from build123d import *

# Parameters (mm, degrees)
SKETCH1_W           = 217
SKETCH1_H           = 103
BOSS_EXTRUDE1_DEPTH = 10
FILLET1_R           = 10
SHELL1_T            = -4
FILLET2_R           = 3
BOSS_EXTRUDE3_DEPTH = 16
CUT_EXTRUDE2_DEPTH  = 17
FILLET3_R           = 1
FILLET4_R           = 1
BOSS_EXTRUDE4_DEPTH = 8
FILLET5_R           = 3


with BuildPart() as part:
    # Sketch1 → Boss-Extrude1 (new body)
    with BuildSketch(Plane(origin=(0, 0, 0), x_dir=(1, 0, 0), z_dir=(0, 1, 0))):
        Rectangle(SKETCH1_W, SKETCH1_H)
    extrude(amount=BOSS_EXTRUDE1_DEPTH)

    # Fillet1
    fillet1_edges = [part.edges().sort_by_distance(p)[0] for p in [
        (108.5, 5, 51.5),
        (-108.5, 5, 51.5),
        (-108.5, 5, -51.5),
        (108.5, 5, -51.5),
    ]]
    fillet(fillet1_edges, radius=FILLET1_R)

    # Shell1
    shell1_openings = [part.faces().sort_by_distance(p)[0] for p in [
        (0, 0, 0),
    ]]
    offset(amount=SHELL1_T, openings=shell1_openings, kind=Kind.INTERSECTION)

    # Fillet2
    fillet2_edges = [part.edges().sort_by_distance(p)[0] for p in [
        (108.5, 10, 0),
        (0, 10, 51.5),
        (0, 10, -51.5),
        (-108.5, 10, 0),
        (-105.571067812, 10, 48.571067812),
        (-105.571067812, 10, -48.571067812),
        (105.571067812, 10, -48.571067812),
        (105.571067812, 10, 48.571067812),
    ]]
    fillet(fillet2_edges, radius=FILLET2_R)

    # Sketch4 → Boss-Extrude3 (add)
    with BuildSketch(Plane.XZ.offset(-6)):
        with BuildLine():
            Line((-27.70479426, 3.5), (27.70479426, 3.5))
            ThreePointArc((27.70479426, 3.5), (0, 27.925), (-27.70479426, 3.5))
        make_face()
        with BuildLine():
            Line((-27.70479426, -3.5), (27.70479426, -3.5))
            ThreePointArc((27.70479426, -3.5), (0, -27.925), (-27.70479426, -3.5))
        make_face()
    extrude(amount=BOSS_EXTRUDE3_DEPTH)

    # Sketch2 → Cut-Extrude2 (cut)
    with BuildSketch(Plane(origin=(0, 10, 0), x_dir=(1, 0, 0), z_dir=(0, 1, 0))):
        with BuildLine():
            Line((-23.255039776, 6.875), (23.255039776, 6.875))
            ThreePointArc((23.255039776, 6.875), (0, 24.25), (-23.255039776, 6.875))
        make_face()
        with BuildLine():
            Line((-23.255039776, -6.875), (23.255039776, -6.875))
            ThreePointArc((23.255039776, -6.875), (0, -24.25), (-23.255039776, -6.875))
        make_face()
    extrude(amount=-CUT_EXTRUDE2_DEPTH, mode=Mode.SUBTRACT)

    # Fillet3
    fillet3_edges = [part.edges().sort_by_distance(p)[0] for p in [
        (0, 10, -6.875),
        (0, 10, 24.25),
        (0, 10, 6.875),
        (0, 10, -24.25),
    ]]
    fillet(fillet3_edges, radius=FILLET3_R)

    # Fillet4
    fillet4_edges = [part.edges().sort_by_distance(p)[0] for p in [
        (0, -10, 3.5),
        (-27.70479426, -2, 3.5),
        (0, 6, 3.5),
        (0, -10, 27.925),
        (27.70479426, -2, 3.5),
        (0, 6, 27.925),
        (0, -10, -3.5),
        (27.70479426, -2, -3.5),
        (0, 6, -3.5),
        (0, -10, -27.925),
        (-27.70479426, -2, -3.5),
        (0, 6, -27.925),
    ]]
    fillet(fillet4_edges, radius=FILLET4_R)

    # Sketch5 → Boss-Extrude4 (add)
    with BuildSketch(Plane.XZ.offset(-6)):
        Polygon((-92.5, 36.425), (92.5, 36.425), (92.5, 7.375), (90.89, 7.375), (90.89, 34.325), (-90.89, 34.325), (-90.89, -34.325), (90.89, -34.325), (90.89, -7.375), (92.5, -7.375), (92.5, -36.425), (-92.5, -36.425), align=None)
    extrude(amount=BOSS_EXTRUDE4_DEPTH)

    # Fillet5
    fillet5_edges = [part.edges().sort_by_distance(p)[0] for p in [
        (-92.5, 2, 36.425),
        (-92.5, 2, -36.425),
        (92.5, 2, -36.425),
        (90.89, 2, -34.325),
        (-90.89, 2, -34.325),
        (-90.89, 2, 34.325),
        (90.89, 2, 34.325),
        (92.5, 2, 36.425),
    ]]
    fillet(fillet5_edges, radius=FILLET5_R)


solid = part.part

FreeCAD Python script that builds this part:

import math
import FreeCAD as App
import Part
import Sketcher


def edges_at(feature, points):
    """Names of the edges that pass closest to the given points."""
    edges = feature.Shape.Edges
    near = lambda p: min(range(len(edges)), key=lambda i: edges[i].distToShape(Part.Vertex(*p))[0])
    return sorted({f"Edge{near(p) + 1}" for p in points})


def faces_at(feature, points):
    """Names of the faces that lie closest to the given points."""
    faces = feature.Shape.Faces
    near = lambda p: min(range(len(faces)), key=lambda i: faces[i].distToShape(Part.Vertex(*p))[0])
    return sorted({f"Face{near(p) + 1}" for p in points})

doc = App.newDocument("Part")
body = doc.addObject("PartDesign::Body", "Body")

sketch1 = body.newObject("Sketcher::SketchObject", "Sketch")
sketch1.AttachmentSupport = (doc.getObject("XZ_Plane"), [""])
sketch1.MapMode = "FlatFace"
sketch1.addGeometry([
    Part.LineSegment(App.Vector(-108, -52, 0), App.Vector(-108, 52, 0)),
    Part.LineSegment(App.Vector(-108, 52, 0), App.Vector(108, 52, 0)),
    Part.LineSegment(App.Vector(108, 52, 0), App.Vector(108, -52, 0)),
    Part.LineSegment(App.Vector(108, -52, 0), App.Vector(-108, -52, 0)),
], False)
sketch1.addConstraint([
    Sketcher.Constraint("Coincident", 0, 2, 1, 1),
    Sketcher.Constraint("Coincident", 1, 2, 2, 1),
    Sketcher.Constraint("Coincident", 2, 2, 3, 1),
    Sketcher.Constraint("Coincident", 3, 2, 0, 1),
    Sketcher.Constraint("Vertical", 0),
    Sketcher.Constraint("Horizontal", 1),
    Sketcher.Constraint("Vertical", 2),
    Sketcher.Constraint("Horizontal", 3),
    Sketcher.Constraint("Symmetric", 0, 2, 2, 2, -1, 1),
    Sketcher.Constraint("DistanceX", 1, 1, 1, 2, 217.0),
    Sketcher.Constraint("DistanceY", 0, 1, 0, 2, 103.0),
])
pad1 = body.newObject("PartDesign::Pad", "Pad")
pad1.Profile = sketch1
pad1.Length = 10
pad1.Reversed = True
doc.recompute()

fillet = body.newObject("PartDesign::Fillet", "Fillet")
fillet.Base = (pad1, edges_at(pad1, [
    (108.5, 5, 51.5),
    (-108.5, 5, 51.5),
    (-108.5, 5, -51.5),
    (108.5, 5, -51.5),
]))
fillet.Radius = 10
doc.recompute()

thickness = body.newObject("PartDesign::Thickness", "Thickness")
thickness.Base = (fillet, faces_at(fillet, [(0, 0, 0)]))
thickness.Value = 4
thickness.Reversed = True
thickness.Join = "Intersection"
doc.recompute()

fillet2 = body.newObject("PartDesign::Fillet", "Fillet001")
fillet2.Base = (thickness, edges_at(thickness, [
    (108.5, 10, 0),
    (0, 10, 51.5),
    (0, 10, -51.5),
    (-108.5, 10, 0),
    (-105.571, 10, 48.571),
    (-105.571, 10, -48.571),
    (105.571, 10, -48.571),
    (105.571, 10, 48.571),
]))
fillet2.Radius = 3

sketch2 = body.newObject("Sketcher::SketchObject", "Sketch001")
sketch2.AttachmentSupport = (doc.getObject("XZ_Plane"), [""])
sketch2.MapMode = "FlatFace"
sketch2.AttachmentOffset = App.Placement(App.Vector(0, 0, -6), App.Rotation())
sketch2.addGeometry([
    Part.LineSegment(App.Vector(-28, 4, 0), App.Vector(28, 4, 0)),
    Part.ArcOfCircle(Part.Circle(App.Vector(0, 0, 0), App.Vector(0, 0, 1), 28), math.radians(7), math.radians(173)),
    Part.LineSegment(App.Vector(28, -4, 0), App.Vector(-28, -4, 0)),
    Part.ArcOfCircle(Part.Circle(App.Vector(0, 0, 0), App.Vector(0, 0, 1), 28), math.radians(-173), math.radians(-7)),
], False)
sketch2.addConstraint([
    Sketcher.Constraint("Coincident", 0, 1, 1, 2),
    Sketcher.Constraint("Coincident", 1, 1, 0, 2),
    Sketcher.Constraint("Coincident", 2, 1, 3, 2),
    Sketcher.Constraint("Coincident", 3, 1, 2, 2),
    Sketcher.Constraint("Horizontal", 0),
    Sketcher.Constraint("Horizontal", 2),
    Sketcher.Constraint("Coincident", 1, 3, -1, 1),
    Sketcher.Constraint("Coincident", 3, 3, -1, 1),
    Sketcher.Constraint("Equal", 1, 3),
    Sketcher.Constraint("Vertical", 1, 1, 2, 1),
    Sketcher.Constraint("Radius", 1, 27.925),
    Sketcher.Constraint("DistanceY", 2, 1, 1, 1, 7.0),
])
pad2 = body.newObject("PartDesign::Pad", "Pad001")
pad2.Profile = sketch2
pad2.Length = 16

sketch3 = body.newObject("Sketcher::SketchObject", "Sketch002")
sketch3.AttachmentSupport = (doc.getObject("XZ_Plane"), [""])
sketch3.MapMode = "FlatFace"
sketch3.AttachmentOffset = App.Placement(App.Vector(0, 0, -10), App.Rotation())
sketch3.addGeometry([
    Part.LineSegment(App.Vector(-23, -7, 0), App.Vector(23, -7, 0)),
    Part.ArcOfCircle(Part.Circle(App.Vector(0, 0, 0), App.Vector(0, 0, 1), 24), math.radians(-164), math.radians(-16)),
    Part.LineSegment(App.Vector(23, 7, 0), App.Vector(-23, 7, 0)),
    Part.ArcOfCircle(Part.Circle(App.Vector(0, 0, 0), App.Vector(0, 0, 1), 24), math.radians(16), math.radians(164)),
], False)
sketch3.addConstraint([
    Sketcher.Constraint("Coincident", 0, 1, 1, 1),
    Sketcher.Constraint("Coincident", 1, 2, 0, 2),
    Sketcher.Constraint("Coincident", 2, 1, 3, 1),
    Sketcher.Constraint("Coincident", 3, 2, 2, 2),
    Sketcher.Constraint("Horizontal", 0),
    Sketcher.Constraint("Horizontal", 2),
    Sketcher.Constraint("Coincident", 1, 3, -1, 1),
    Sketcher.Constraint("Coincident", 3, 3, -1, 1),
    Sketcher.Constraint("Equal", 1, 3),
    Sketcher.Constraint("Vertical", 1, 2, 2, 1),
    Sketcher.Constraint("Radius", 1, 24.25),
    Sketcher.Constraint("DistanceY", 1, 2, 2, 1, 13.75),
])
pocket1 = body.newObject("PartDesign::Pocket", "Pocket")
pocket1.Profile = sketch3
pocket1.Length = 17
pocket1.Reversed = True
doc.recompute()

fillet3 = body.newObject("PartDesign::Fillet", "Fillet002")
fillet3.Base = (pocket1, edges_at(pocket1, [
    (0, 10, -6.875),
    (0, 10, 24.25),
    (0, 10, 6.875),
    (0, 10, -24.25),
]))
fillet3.Radius = 1
doc.recompute()

fillet4 = body.newObject("PartDesign::Fillet", "Fillet003")
fillet4.Base = (fillet3, edges_at(fillet3, [
    (0, -10, 3.5),
    (-27.705, -2, 3.5),
    (0, 6, 3.5),
    (0, -10, 27.925),
    (27.705, -2, 3.5),
    (0, 6, 27.925),
    (0, -10, -3.5),
    (27.705, -2, -3.5),
    (0, 6, -3.5),
    (0, -10, -27.925),
    (-27.705, -2, -3.5),
    (0, 6, -27.925),
]))
fillet4.Radius = 1

sketch4 = body.newObject("Sketcher::SketchObject", "Sketch003")
sketch4.AttachmentSupport = (doc.getObject("XZ_Plane"), [""])
sketch4.MapMode = "FlatFace"
sketch4.AttachmentOffset = App.Placement(App.Vector(0, 0, -6), App.Rotation())
sketch4.addGeometry([
    Part.LineSegment(App.Vector(92.5, 36.4, 0), App.Vector(-92.5, 36.4, 0)),
    Part.LineSegment(App.Vector(-92.5, 36.4, 0), App.Vector(-92.5, -36.4, 0)),
    Part.LineSegment(App.Vector(-92.5, -36.4, 0), App.Vector(92.5, -36.4, 0)),
    Part.LineSegment(App.Vector(92.5, -36.4, 0), App.Vector(92.5, -7.4, 0)),
    Part.LineSegment(App.Vector(92.5, -7.4, 0), App.Vector(90.9, -7.4, 0)),
    Part.LineSegment(App.Vector(90.9, -7.4, 0), App.Vector(90.9, -34.3, 0)),
    Part.LineSegment(App.Vector(90.9, -34.3, 0), App.Vector(-90.9, -34.3, 0)),
    Part.LineSegment(App.Vector(-90.9, -34.3, 0), App.Vector(-90.9, 34.3, 0)),
    Part.LineSegment(App.Vector(-90.9, 34.3, 0), App.Vector(90.9, 34.3, 0)),
    Part.LineSegment(App.Vector(90.9, 34.3, 0), App.Vector(90.9, 7.4, 0)),
    Part.LineSegment(App.Vector(90.9, 7.4, 0), App.Vector(92.5, 7.4, 0)),
    Part.LineSegment(App.Vector(92.5, 7.4, 0), App.Vector(92.5, 36.4, 0)),
], False)
sketch4.addConstraint([
    Sketcher.Constraint("Coincident", 0, 2, 1, 1),
    Sketcher.Constraint("Coincident", 1, 2, 2, 1),
    Sketcher.Constraint("Coincident", 2, 2, 3, 1),
    Sketcher.Constraint("Coincident", 3, 2, 4, 1),
    Sketcher.Constraint("Coincident", 4, 2, 5, 1),
    Sketcher.Constraint("Coincident", 5, 2, 6, 1),
    Sketcher.Constraint("Coincident", 6, 2, 7, 1),
    Sketcher.Constraint("Coincident", 7, 2, 8, 1),
    Sketcher.Constraint("Coincident", 8, 2, 9, 1),
    Sketcher.Constraint("Coincident", 9, 2, 10, 1),
    Sketcher.Constraint("Coincident", 10, 2, 11, 1),
    Sketcher.Constraint("Coincident", 11, 2, 0, 1),
    Sketcher.Constraint("Horizontal", 0),
    Sketcher.Constraint("Vertical", 1),
    Sketcher.Constraint("Horizontal", 2),
    Sketcher.Constraint("Vertical", 3),
    Sketcher.Constraint("Horizontal", 4),
    Sketcher.Constraint("Vertical", 5),
    Sketcher.Constraint("Horizontal", 6),
    Sketcher.Constraint("Vertical", 7),
    Sketcher.Constraint("Horizontal", 8),
    Sketcher.Constraint("Vertical", 9),
    Sketcher.Constraint("Horizontal", 10),
    Sketcher.Constraint("Vertical", 11),
    Sketcher.Constraint("Symmetric", 0, 2, 2, 2, -1, 1),
    Sketcher.Constraint("Symmetric", 5, 2, 7, 2, -1, 1),
    Sketcher.Constraint("Symmetric", 4, 2, 9, 2, -1),
    Sketcher.Constraint("Vertical", 3, 2, 10, 2),
    Sketcher.Constraint("DistanceX", 0, 2, 0, 1, 185.0),
    Sketcher.Constraint("DistanceX", 4, 2, 4, 1, 1.61),
    Sketcher.Constraint("DistanceY", 1, 2, 1, 1, 72.85),
    Sketcher.Constraint("DistanceY", 3, 1, 3, 2, 29.05),
    Sketcher.Constraint("DistanceY", 5, 2, 5, 1, 26.95),
])
pad3 = body.newObject("PartDesign::Pad", "Pad002")
pad3.Profile = sketch4
pad3.Length = 8
doc.recompute()

fillet5 = body.newObject("PartDesign::Fillet", "Fillet004")
fillet5.Base = (pad3, edges_at(pad3, [
    (-92.5, 2, 36.425),
    (-92.5, 2, -36.425),
    (92.5, 2, -36.425),
    (90.89, 2, -34.325),
    (-90.89, 2, -34.325),
    (-90.89, 2, 34.325),
    (90.89, 2, 34.325),
    (92.5, 2, 36.425),
]))
fillet5.Radius = 3

doc.recompute()
